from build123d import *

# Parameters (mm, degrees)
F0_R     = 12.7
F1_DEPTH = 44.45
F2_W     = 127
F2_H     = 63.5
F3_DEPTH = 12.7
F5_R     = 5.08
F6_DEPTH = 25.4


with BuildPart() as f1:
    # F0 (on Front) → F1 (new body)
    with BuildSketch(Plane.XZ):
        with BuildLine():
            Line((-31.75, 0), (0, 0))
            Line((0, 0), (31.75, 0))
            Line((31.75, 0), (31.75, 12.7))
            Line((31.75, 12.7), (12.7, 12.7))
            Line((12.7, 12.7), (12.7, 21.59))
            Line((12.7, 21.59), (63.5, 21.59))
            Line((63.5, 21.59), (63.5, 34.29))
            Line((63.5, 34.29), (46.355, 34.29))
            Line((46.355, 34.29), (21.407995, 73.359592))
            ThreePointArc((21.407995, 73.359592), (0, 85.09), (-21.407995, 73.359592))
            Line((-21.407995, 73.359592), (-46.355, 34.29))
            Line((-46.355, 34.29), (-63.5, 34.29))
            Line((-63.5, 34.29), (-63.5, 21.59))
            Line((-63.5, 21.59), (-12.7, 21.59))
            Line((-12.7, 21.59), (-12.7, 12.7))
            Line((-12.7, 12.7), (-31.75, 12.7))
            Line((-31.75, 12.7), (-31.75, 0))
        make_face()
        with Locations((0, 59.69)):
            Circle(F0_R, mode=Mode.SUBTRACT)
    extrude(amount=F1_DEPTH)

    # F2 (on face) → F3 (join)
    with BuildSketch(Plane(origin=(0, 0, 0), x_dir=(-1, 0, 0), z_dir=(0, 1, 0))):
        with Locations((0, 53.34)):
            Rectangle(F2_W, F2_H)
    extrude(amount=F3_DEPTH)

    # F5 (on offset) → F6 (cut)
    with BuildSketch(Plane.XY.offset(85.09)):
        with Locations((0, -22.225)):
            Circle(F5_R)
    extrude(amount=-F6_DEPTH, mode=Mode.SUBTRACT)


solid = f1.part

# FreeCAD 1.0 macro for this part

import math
import FreeCAD as App
import Part
import Sketcher

V = App.Vector
Q = App.Units.Quantity


def add_polygon(sketch, points):
    """Adds a closed chain of lines whose ends are joined by coincident constraints."""
    first, n = sketch.GeometryCount, len(points)
    for a, b in zip(points, points[1:] + points[:1]):
        sketch.addGeometry(Part.LineSegment(App.Vector(*a, 0), App.Vector(*b, 0)), False)
    for i in range(n):
        sketch.addConstraint(Sketcher.Constraint("Coincident", first + i, 2, first + (i + 1) % n, 1))

doc = App.newDocument("Part")
body = doc.addObject("PartDesign::Body", "Body")

# Sketch on XZ plane
sketch1 = doc.addObject("Sketcher::SketchObject", "Sketch")
body.addObject(sketch1)
sketch1.AttachmentSupport = (doc.XZ_Plane, [""])
sketch1.MapMode = "FlatFace"
sketch1.addGeometry(Part.LineSegment(V(-32, 0, 0), V(32, 0, 0)), False)
sketch1.addGeometry(Part.LineSegment(V(32, 0, 0), V(32, 13, 0)), False)
sketch1.addGeometry(Part.LineSegment(V(32, 13, 0), V(13, 13, 0)), False)
sketch1.addGeometry(Part.LineSegment(V(13, 13, 0), V(13, 22, 0)), False)
sketch1.addGeometry(Part.LineSegment(V(13, 22, 0), V(64, 22, 0)), False)
sketch1.addGeometry(Part.LineSegment(V(64, 22, 0), V(64, 34, 0)), False)
sketch1.addGeometry(Part.LineSegment(V(64, 34, 0), V(46, 34, 0)), False)
sketch1.addGeometry(Part.LineSegment(V(46, 34, 0), V(21, 73, 0)), False)
sketch1.addGeometry(Part.ArcOfCircle(Part.Circle(V(0, 60, 0), V(0, 0, 1), 25), math.radians(33), math.radians(147)), False)
sketch1.addGeometry(Part.LineSegment(V(-21, 73, 0), V(-46, 34, 0)), False)
sketch1.addGeometry(Part.LineSegment(V(-46, 34, 0), V(-64, 34, 0)), False)
sketch1.addGeometry(Part.LineSegment(V(-64, 34, 0), V(-64, 22, 0)), False)
sketch1.addGeometry(Part.LineSegment(V(-64, 22, 0), V(-13, 22, 0)), False)
sketch1.addGeometry(Part.LineSegment(V(-13, 22, 0), V(-13, 13, 0)), False)
sketch1.addGeometry(Part.LineSegment(V(-13, 13, 0), V(-32, 13, 0)), False)
sketch1.addGeometry(Part.LineSegment(V(-32, 13, 0), V(-32, 0, 0)), False)
sketch1.addGeometry(Part.Circle(V(0, 60, 0), V(0, 0, 1), 13), False)
sketch1.addConstraint(Sketcher.Constraint("Coincident", 0, 2, 1, 1))
sketch1.addConstraint(Sketcher.Constraint("Coincident", 1, 2, 2, 1))
sketch1.addConstraint(Sketcher.Constraint("Coincident", 2, 2, 3, 1))
sketch1.addConstraint(Sketcher.Constraint("Coincident", 3, 2, 4, 1))
sketch1.addConstraint(Sketcher.Constraint("Coincident", 4, 2, 5, 1))
sketch1.addConstraint(Sketcher.Constraint("Coincident", 5, 2, 6, 1))
sketch1.addConstraint(Sketcher.Constraint("Coincident", 6, 2, 7, 1))
sketch1.addConstraint(Sketcher.Constraint("Tangent", 7, 2, 8, 1))
sketch1.addConstraint(Sketcher.Constraint("Tangent", 8, 2, 9, 1))
sketch1.addConstraint(Sketcher.Constraint("Coincident", 9, 2, 10, 1))
sketch1.addConstraint(Sketcher.Constraint("Coincident", 10, 2, 11, 1))
sketch1.addConstraint(Sketcher.Constraint("Coincident", 11, 2, 12, 1))
sketch1.addConstraint(Sketcher.Constraint("Coincident", 12, 2, 13, 1))
sketch1.addConstraint(Sketcher.Constraint("Coincident", 13, 2, 14, 1))
sketch1.addConstraint(Sketcher.Constraint("Coincident", 14, 2, 15, 1))
sketch1.addConstraint(Sketcher.Constraint("Coincident", 15, 2, 0, 1))
sketch1.addConstraint(Sketcher.Constraint("Horizontal", 0))
sketch1.addConstraint(Sketcher.Constraint("Vertical", 1))
sketch1.addConstraint(Sketcher.Constraint("Horizontal", 2))
sketch1.addConstraint(Sketcher.Constraint("Vertical", 3))
sketch1.addConstraint(Sketcher.Constraint("Horizontal", 4))
sketch1.addConstraint(Sketcher.Constraint("Vertical", 5))
sketch1.addConstraint(Sketcher.Constraint("Horizontal", 6))
sketch1.addConstraint(Sketcher.Constraint("Horizontal", 10))
sketch1.addConstraint(Sketcher.Constraint("Vertical", 11))
sketch1.addConstraint(Sketcher.Constraint("Horizontal", 12))
sketch1.addConstraint(Sketcher.Constraint("Vertical", 13))
sketch1.addConstraint(Sketcher.Constraint("Horizontal", 14))
sketch1.addConstraint(Sketcher.Constraint("Vertical", 15))
sketch1.addConstraint(Sketcher.Constraint("Coincident", 16, 3, 8, 3))
sketch1.addConstraint(Sketcher.Constraint("Symmetric", 0, 2, 15, 2, -1, 1))
sketch1.addConstraint(Sketcher.Constraint("Symmetric", 7, 2, 8, 2, -2))
sketch1.addConstraint(Sketcher.Constraint("Symmetric", 5, 2, 10, 2, -2))
sketch1.addConstraint(Sketcher.Constraint("Symmetric", 3, 2, 12, 2, -2))
sketch1.addConstraint(Sketcher.Constraint("Horizontal", 2, 2, 13, 2))
sketch1.addConstraint(Sketcher.Constraint("Equal", 1, 5))
sketch1.addConstraint(Sketcher.Constraint("Diameter", 16, Q("1 in")))
sketch1.addConstraint(Sketcher.Constraint("Radius", 8, Q("1 in")))
sketch1.addConstraint(Sketcher.Constraint("DistanceX", 4, 1, 4, 2, Q("2 in")))
sketch1.addConstraint(Sketcher.Constraint("DistanceX", 0, 1, 0, 2, Q("2.5 in")))
sketch1.addConstraint(Sketcher.Constraint("DistanceY", 1, 1, 1, 2, Q("0.5 in")))
sketch1.addConstraint(Sketcher.Constraint("DistanceY", 9, 2, 16, 3, Q("1 in")))
sketch1.addConstraint(Sketcher.Constraint("DistanceX", 10, 2, 3, 2, Q("3 in")))
sketch1.addConstraint(Sketcher.Constraint("DistanceY", 3, 1, 3, 2, Q("0.35 in")))
sketch1.addConstraint(Sketcher.Constraint("DistanceX", 6, 2, 6, 1, Q("0.675 in")))
pad1 = doc.addObject("PartDesign::Pad", "Pad")
body.addObject(pad1)
pad1.Profile = sketch1
pad1.Length = Q("1.75 in")

# Sketch on XZ plane
sketch2 = doc.addObject("Sketcher::SketchObject", "Sketch001")
body.addObject(sketch2)
sketch2.AttachmentSupport = (doc.XZ_Plane, [""])
sketch2.MapMode = "FlatFace"
add_polygon(sketch2, [(64, 85), (64, 22), (-64, 22), (-64, 85)])  # lines 0-3
sketch2.addConstraint(Sketcher.Constraint("Vertical", 0))
sketch2.addConstraint(Sketcher.Constraint("Horizontal", 1))
sketch2.addConstraint(Sketcher.Constraint("Vertical", 2))
sketch2.addConstraint(Sketcher.Constraint("Horizontal", 3))
sketch2.addConstraint(Sketcher.Constraint("DistanceX", 1, 2, 1, 1, Q("5 in")))
sketch2.addConstraint(Sketcher.Constraint("DistanceY", 0, 2, 0, 1, Q("2.5 in")))
sketch2.addConstraint(Sketcher.Constraint("DistanceX", -1, 1, 0, 2, Q("2.5 in")))
sketch2.addConstraint(Sketcher.Constraint("DistanceY", -1, 1, 0, 2, Q("0.85 in")))
pad2 = doc.addObject("PartDesign::Pad", "Pad001")
body.addObject(pad2)
pad2.Profile = sketch2
pad2.Length = Q("0.5 in")
pad2.Reversed = True

# Sketch on XY plane
sketch3 = doc.addObject("Sketcher::SketchObject", "Sketch002")
body.addObject(sketch3)
sketch3.AttachmentSupport = (doc.XY_Plane, [""])
sketch3.MapMode = "FlatFace"
sketch3.AttachmentOffset = App.Placement(V(0, 0, 3.35 * 25.4), App.Rotation())
sketch3.addGeometry(Part.Circle(V(0, -22, 0), V(0, 0, 1), 5), False)
sketch3.addConstraint(Sketcher.Constraint("PointOnObject", 0, 3, -2))
sketch3.addConstraint(Sketcher.Constraint("Diameter", 0, Q("0.4 in")))
sketch3.addConstraint(Sketcher.Constraint("DistanceY", 0, 3, -1, 1, Q("0.875 in")))
pocket1 = doc.addObject("PartDesign::Pocket", "Pocket")
body.addObject(pocket1)
pocket1.Profile = sketch3
pocket1.Length = Q("1 in")

doc.recompute()
